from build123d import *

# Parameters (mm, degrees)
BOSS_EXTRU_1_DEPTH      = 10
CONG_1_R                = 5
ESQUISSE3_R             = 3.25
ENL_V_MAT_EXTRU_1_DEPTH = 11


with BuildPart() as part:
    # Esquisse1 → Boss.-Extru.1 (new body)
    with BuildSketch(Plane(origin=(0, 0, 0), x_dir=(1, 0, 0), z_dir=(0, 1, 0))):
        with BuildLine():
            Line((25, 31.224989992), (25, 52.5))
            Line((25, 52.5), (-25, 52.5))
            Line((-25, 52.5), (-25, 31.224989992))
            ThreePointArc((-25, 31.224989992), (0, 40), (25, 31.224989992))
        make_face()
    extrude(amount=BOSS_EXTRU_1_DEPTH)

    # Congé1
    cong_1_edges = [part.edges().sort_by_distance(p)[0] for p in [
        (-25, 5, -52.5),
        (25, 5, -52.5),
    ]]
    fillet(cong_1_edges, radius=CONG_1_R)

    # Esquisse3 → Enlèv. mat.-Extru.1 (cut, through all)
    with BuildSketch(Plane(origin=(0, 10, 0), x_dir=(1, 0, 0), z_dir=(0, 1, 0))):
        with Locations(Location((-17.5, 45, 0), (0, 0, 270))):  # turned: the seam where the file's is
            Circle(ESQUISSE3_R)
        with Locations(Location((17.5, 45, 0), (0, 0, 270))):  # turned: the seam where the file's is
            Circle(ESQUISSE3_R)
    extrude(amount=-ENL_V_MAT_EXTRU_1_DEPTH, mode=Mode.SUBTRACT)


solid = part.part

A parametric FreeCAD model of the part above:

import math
import FreeCAD as App
import Part
import Sketcher


def edges_at(feature, points):
    """Names of the edges that pass closest to the given points."""
    edges = feature.Shape.Edges
    near = lambda p: min(range(len(edges)), key=lambda i: edges[i].distToShape(Part.Vertex(*p))[0])
    return sorted({f"Edge{near(p) + 1}" for p in points})

doc = App.newDocument("Part")
body = doc.addObject("PartDesign::Body", "Body")

# Sketch on XZ plane
sketch1 = body.newObject("Sketcher::SketchObject", "Sketch")
sketch1.AttachmentSupport = (doc.getObject("XZ_Plane"), [""])
sketch1.MapMode = "FlatFace"
sketch1.addGeometry([
    Part.LineSegment(App.Vector(25, -31.22499, 0), App.Vector(25, -52.5, 0)),
    Part.LineSegment(App.Vector(25, -52.5, 0), App.Vector(-25, -52.5, 0)),
    Part.LineSegment(App.Vector(-25, -52.5, 0), App.Vector(-25, -31.22499, 0)),
    Part.ArcOfCircle(Part.Circle(App.Vector(0, 0, 0), App.Vector(0, 0, 1), 40), math.radians(-128.682187), math.radians(-51.317813)),
], False)
sketch1.addConstraint([
    Sketcher.Constraint("Coincident", 0, 2, 1, 1),
    Sketcher.Constraint("Coincident", 1, 2, 2, 1),
    Sketcher.Constraint("Coincident", 2, 2, 3, 1),
    Sketcher.Constraint("Coincident", 3, 2, 0, 1),
    Sketcher.Constraint("Vertical", 0),
    Sketcher.Constraint("Horizontal", 1),
    Sketcher.Constraint("Vertical", 2),
    Sketcher.Constraint("Coincident", 3, 3, -1, 1),
    Sketcher.Constraint("Horizontal", 2, 2, 3, 2),
    Sketcher.Constraint("Radius", 3, 40.0),
    Sketcher.Constraint("DistanceX", 1, 2, 1, 1, 50.0),
    Sketcher.Constraint("DistanceY", 0, 2, -1, 1, 52.5),
])
pad1 = body.newObject("PartDesign::Pad", "Pad")
pad1.Profile = sketch1
pad1.Length = 10
pad1.Reversed = True
doc.recompute()

fillet = body.newObject("PartDesign::Fillet", "Fillet")
fillet.Base = (pad1, edges_at(pad1, [(-25, 5, -52.5), (25, 5, -52.5)]))
fillet.Radius = 5

# Sketch on XZ plane
sketch2 = body.newObject("Sketcher::SketchObject", "Sketch001")
sketch2.AttachmentSupport = (doc.getObject("XZ_Plane"), [""])
sketch2.MapMode = "FlatFace"
sketch2.AttachmentOffset = App.Placement(App.Vector(0, 0, -10), App.Rotation())
sketch2.addGeometry([
    Part.Circle(App.Vector(-17.5, -45, 0), App.Vector(0, 0, 1), 3.25),
    Part.Circle(App.Vector(17.5, -45, 0), App.Vector(0, 0, 1), 3.25),
], False)
sketch2.addConstraint([
    Sketcher.Constraint("Equal", 0, 1),
    Sketcher.Constraint("Symmetric", 0, 3, 1, 3, -2),
    Sketcher.Constraint("Diameter", 0, 6.5),
    Sketcher.Constraint("DistanceY", 0, 3, -1, 1, 45.0),
    Sketcher.Constraint("DistanceX", 0, 3, 1, 3, 35.0),
])
pocket1 = body.newObject("PartDesign::Pocket", "Pocket")
pocket1.Profile = sketch2
pocket1.Type = "ThroughAll"
pocket1.Reversed = True

doc.recompute()
